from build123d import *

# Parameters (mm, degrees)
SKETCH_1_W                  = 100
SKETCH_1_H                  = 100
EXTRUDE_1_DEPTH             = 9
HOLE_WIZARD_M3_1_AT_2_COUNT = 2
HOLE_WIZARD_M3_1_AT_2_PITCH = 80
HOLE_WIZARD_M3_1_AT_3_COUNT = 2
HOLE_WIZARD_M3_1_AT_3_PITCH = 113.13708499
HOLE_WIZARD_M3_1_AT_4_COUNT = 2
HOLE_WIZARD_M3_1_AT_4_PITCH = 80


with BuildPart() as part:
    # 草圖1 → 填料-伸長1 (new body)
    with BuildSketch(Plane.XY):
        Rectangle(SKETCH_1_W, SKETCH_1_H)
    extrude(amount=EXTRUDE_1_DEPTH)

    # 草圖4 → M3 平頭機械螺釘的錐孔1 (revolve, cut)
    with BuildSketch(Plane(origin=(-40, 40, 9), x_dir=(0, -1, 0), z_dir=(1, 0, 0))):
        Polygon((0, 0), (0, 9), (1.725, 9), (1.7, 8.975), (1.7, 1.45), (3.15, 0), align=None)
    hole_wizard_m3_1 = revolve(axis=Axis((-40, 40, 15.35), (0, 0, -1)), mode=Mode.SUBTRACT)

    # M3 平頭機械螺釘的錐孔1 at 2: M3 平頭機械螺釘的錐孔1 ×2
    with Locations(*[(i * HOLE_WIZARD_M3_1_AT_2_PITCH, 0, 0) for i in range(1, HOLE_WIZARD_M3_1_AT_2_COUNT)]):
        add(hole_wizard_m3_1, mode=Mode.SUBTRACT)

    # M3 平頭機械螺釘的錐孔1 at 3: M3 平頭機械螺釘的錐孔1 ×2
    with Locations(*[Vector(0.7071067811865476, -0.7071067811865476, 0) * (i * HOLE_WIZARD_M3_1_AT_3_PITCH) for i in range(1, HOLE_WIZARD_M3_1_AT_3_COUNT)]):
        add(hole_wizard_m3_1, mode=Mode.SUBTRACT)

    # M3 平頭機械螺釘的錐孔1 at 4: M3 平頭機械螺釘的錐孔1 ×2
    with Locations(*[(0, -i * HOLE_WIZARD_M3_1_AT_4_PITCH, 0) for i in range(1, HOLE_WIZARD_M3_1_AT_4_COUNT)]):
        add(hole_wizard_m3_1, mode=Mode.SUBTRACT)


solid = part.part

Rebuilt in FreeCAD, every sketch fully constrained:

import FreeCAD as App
import Part
import Sketcher

V = App.Vector
Q = App.Units.Quantity

doc = App.newDocument("Part")
params = doc.addObject("Spreadsheet::Sheet", "Params")
for row, (alias, value) in enumerate([
    ("sketch1_width", "100 mm"),
    ("pad1_length", "9 mm"),
    ("sketch2_height", "9 mm"),
    ("sketch2_width", "3.15 mm"),
    ("groove_angle", "360 deg"),
    ("linearpattern_pitch", "80 mm"),
    ("linearpattern2_pitch", "113.137085 mm"),
    ("linearpattern3_pitch", "80 mm"),
], start=1):
    params.set(f"A{row}", alias)
    params.set(f"B{row}", "=" + value)
    params.setAlias(f"B{row}", alias)

body = doc.addObject("PartDesign::Body", "Body")

sketch1 = body.newObject("Sketcher::SketchObject", "Sketch")
sketch1.AttachmentSupport = (doc.getObject("XY_Plane"), [""])
sketch1.MapMode = "FlatFace"
sketch1.addGeometry([
    Part.LineSegment(V(-50, 50, 0), V(-50, -50, 0)),
    Part.LineSegment(V(-50, -50, 0), V(50, -50, 0)),
    Part.LineSegment(V(50, -50, 0), V(50, 50, 0)),
    Part.LineSegment(V(50, 50, 0), V(-50, 50, 0)),
], False)
sketch1.addConstraint([
    Sketcher.Constraint("Coincident", 0, 2, 1, 1),
    Sketcher.Constraint("Coincident", 1, 2, 2, 1),
    Sketcher.Constraint("Coincident", 2, 2, 3, 1),
    Sketcher.Constraint("Coincident", 3, 2, 0, 1),
    Sketcher.Constraint("Vertical", 0),
    Sketcher.Constraint("Horizontal", 1),
    Sketcher.Constraint("Vertical", 2),
    Sketcher.Constraint("Horizontal", 3),
    Sketcher.Constraint("Symmetric", 0, 2, 2, 2, -1, 1),
    Sketcher.Constraint("Equal", 3, 0),
    Sketcher.Constraint("DistanceX", 1, 1, 1, 2, Q("100 mm")),
])
sketch1.setExpression("Constraints[10]", "Params.sketch1_width")
pad1 = body.newObject("PartDesign::Pad", "Pad")
pad1.Profile = sketch1
pad1.setExpression("Length", "Params.pad1_length")

sketch2 = body.newObject("Sketcher::SketchObject", "Sketch001")
sketch2.AttachmentSupport = (doc.getObject("YZ_Plane"), [""])
sketch2.MapMode = "FlatFace"
sketch2.AttachmentOffset = App.Placement(V(0, 0, -40), App.Rotation())
sketch2.addGeometry([
    Part.LineSegment(V(40, 0, 0), V(40, 9, 0)),
    Part.LineSegment(V(40, 9, 0), V(36.85, 9, 0)),
    Part.LineSegment(V(36.85, 9, 0), V(38.3, 7.55, 0)),
    Part.LineSegment(V(38.3, 7.55, 0), V(38.3, 0.025, 0)),
    Part.LineSegment(V(38.3, 0.025, 0), V(38.275, 0, 0)),
    Part.LineSegment(V(38.275, 0, 0), V(40, 0, 0)),
], False)
sketch2.addGeometry(Part.LineSegment(V(40, 9, 0), V(40, 0, 0)), True)
sketch2.addConstraint([
    Sketcher.Constraint("Coincident", 0, 2, 1, 1),
    Sketcher.Constraint("Coincident", 1, 2, 2, 1),
    Sketcher.Constraint("Coincident", 2, 2, 3, 1),
    Sketcher.Constraint("Coincident", 3, 2, 4, 1),
    Sketcher.Constraint("Coincident", 4, 2, 5, 1),
    Sketcher.Constraint("Coincident", 5, 2, 0, 1),
    Sketcher.Constraint("Vertical", 0),
    Sketcher.Constraint("Horizontal", 1),
    Sketcher.Constraint("Vertical", 3),
    Sketcher.Constraint("Horizontal", 5),
    Sketcher.Constraint("Vertical", 6),
    Sketcher.Constraint("Coincident", 6, 1, 0, 2),
    Sketcher.Constraint("PointOnObject", 4, 2, -1),
    Sketcher.Constraint("PointOnObject", 6, 2, -1),
    Sketcher.Constraint("Perpendicular", 2, 4),
    Sketcher.Constraint("DistanceY", 0, 1, 0, 2, Q("9 mm")),
    Sketcher.Constraint("Angle", 2, Q("-45 deg")),
    Sketcher.Constraint("DistanceX", -1, 1, 0, 2, Q("40 mm")),
    Sketcher.Constraint("DistanceX", 1, 2, 1, 1, Q("3.15 mm")),
    Sketcher.Constraint("DistanceX", -1, 1, 2, 2, Q("38.3 mm")),
    Sketcher.Constraint("DistanceX", 5, 1, 5, 2, Q("1.725 mm")),
])
sketch2.setExpression("Constraints[15]", "Params.sketch2_height")
sketch2.setExpression("Constraints[18]", "Params.sketch2_width")
groove = body.newObject("PartDesign::Groove", "Groove")
groove.Profile = sketch2
groove.ReferenceAxis = (sketch2, ["Axis0"])
groove.setExpression("Angle", "Params.groove_angle")
doc.recompute()

linearpattern = body.newObject("PartDesign::LinearPattern", "LinearPattern")
linearpattern.Originals = [groove]
linearpattern.Direction = (doc.getObject("X_Axis"), [""])
linearpattern.Mode = "offset"
linearpattern.setExpression("Offset", "Params.linearpattern_pitch")
linearpattern.Occurrences = 2
body.Tip = linearpattern
doc.recompute()

datumline = body.newObject("PartDesign::Line", "DatumLine")
datumline.Placement = App.Placement(V(0, 0, 0), App.Rotation(V(0, 0, 1), V(0.707106781, -0.707106781, 0)))
linearpattern2 = body.newObject("PartDesign::LinearPattern", "LinearPattern001")
linearpattern2.Originals = [groove]
linearpattern2.Direction = (datumline, [""])
linearpattern2.Mode = "offset"
linearpattern2.setExpression("Offset", "Params.linearpattern2_pitch")
linearpattern2.Occurrences = 2
body.Tip = linearpattern2
doc.recompute()

linearpattern3 = body.newObject("PartDesign::LinearPattern", "LinearPattern002")
linearpattern3.Originals = [groove]
linearpattern3.Direction = (doc.getObject("Y_Axis"), [""])
linearpattern3.Mode = "offset"
linearpattern3.setExpression("Offset", "Params.linearpattern3_pitch")
linearpattern3.Occurrences = 2
linearpattern3.Reversed = True
body.Tip = linearpattern3

doc.recompute()
